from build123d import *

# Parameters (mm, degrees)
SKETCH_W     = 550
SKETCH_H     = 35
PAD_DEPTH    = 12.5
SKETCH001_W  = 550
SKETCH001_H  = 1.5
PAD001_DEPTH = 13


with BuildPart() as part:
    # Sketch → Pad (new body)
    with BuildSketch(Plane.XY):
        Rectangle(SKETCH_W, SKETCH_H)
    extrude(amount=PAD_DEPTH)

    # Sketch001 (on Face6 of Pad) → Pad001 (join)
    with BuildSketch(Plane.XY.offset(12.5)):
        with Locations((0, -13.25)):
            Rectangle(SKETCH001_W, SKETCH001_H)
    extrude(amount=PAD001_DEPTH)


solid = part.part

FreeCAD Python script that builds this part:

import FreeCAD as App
import Part
import Sketcher

V = App.Vector

doc = App.newDocument("Part")
params = doc.addObject("Spreadsheet::Sheet", "Params")
for row, (alias, value) in enumerate([
    ("sketch1_width", "550 mm"),
    ("sketch1_height", "35 mm"),
    ("pad1_length", "12.5 mm"),
    ("sketch2_width", "550 mm"),
    ("sketch2_height", "1.5 mm"),
    ("pad2_length", "13 mm"),
], start=1):
    params.set(f"A{row}", alias)
    params.set(f"B{row}", "=" + value)
    params.setAlias(f"B{row}", alias)

body = doc.addObject("PartDesign::Body", "Body")

# Sketch on XY plane
sketch1 = body.newObject("Sketcher::SketchObject", "Sketch")
sketch1.AttachmentSupport = (doc.getObject("XY_Plane"), [""])
sketch1.MapMode = "FlatFace"
sketch1.addGeometry(Part.LineSegment(V(-275, 17.5, 0), V(-275, -17.5, 0)), False)
sketch1.addGeometry(Part.LineSegment(V(-275, -17.5, 0), V(275, -17.5, 0)), False)
sketch1.addGeometry(Part.LineSegment(V(275, -17.5, 0), V(275, 17.5, 0)), False)
sketch1.addGeometry(Part.LineSegment(V(275, 17.5, 0), V(-275, 17.5, 0)), False)
sketch1.addConstraint(Sketcher.Constraint("Coincident", 0, 2, 1, 1))
sketch1.addConstraint(Sketcher.Constraint("Coincident", 1, 2, 2, 1))
sketch1.addConstraint(Sketcher.Constraint("Coincident", 2, 2, 3, 1))
sketch1.addConstraint(Sketcher.Constraint("Coincident", 3, 2, 0, 1))
sketch1.addConstraint(Sketcher.Constraint("Vertical", 0))
sketch1.addConstraint(Sketcher.Constraint("Horizontal", 1))
sketch1.addConstraint(Sketcher.Constraint("Vertical", 2))
sketch1.addConstraint(Sketcher.Constraint("Horizontal", 3))
sketch1.addConstraint(Sketcher.Constraint("Symmetric", 0, 2, 2, 2, -1, 1))
sketch1.addConstraint(Sketcher.Constraint("DistanceX", 1, 1, 1, 2, 550.0))
sketch1.addConstraint(Sketcher.Constraint("DistanceY", 0, 2, 0, 1, 35.0))
sketch1.setExpression("Constraints[9]", "Params.sketch1_width")
sketch1.setExpression("Constraints[10]", "Params.sketch1_height")
pad1 = body.newObject("PartDesign::Pad", "Pad")
pad1.Profile = sketch1
pad1.setExpression("Length", "Params.pad1_length")

# Sketch on XY plane
sketch2 = body.newObject("Sketcher::SketchObject", "Sketch001")
sketch2.AttachmentSupport = (doc.getObject("XY_Plane"), [""])
sketch2.MapMode = "FlatFace"
sketch2.AttachmentOffset = App.Placement(V(0, 0, 12.5), App.Rotation())
sketch2.addGeometry(Part.LineSegment(V(-275, -12.5, 0), V(-275, -14, 0)), False)
sketch2.addGeometry(Part.LineSegment(V(-275, -14, 0), V(275, -14, 0)), False)
sketch2.addGeometry(Part.LineSegment(V(275, -14, 0), V(275, -12.5, 0)), False)
sketch2.addGeometry(Part.LineSegment(V(275, -12.5, 0), V(-275, -12.5, 0)), False)
sketch2.addConstraint(Sketcher.Constraint("Coincident", 0, 2, 1, 1))
sketch2.addConstraint(Sketcher.Constraint("Coincident", 1, 2, 2, 1))
sketch2.addConstraint(Sketcher.Constraint("Coincident", 2, 2, 3, 1))
sketch2.addConstraint(Sketcher.Constraint("Coincident", 3, 2, 0, 1))
sketch2.addConstraint(Sketcher.Constraint("Vertical", 0))
sketch2.addConstraint(Sketcher.Constraint("Horizontal", 1))
sketch2.addConstraint(Sketcher.Constraint("Vertical", 2))
sketch2.addConstraint(Sketcher.Constraint("Horizontal", 3))
sketch2.addConstraint(Sketcher.Constraint("DistanceX", 1, 1, 1, 2, 550.0))
sketch2.addConstraint(Sketcher.Constraint("DistanceY", 0, 2, 0, 1, 1.5))
sketch2.addConstraint(Sketcher.Constraint("DistanceX", 0, 2, -1, 1, 275.0))
sketch2.addConstraint(Sketcher.Constraint("DistanceY", 0, 2, -1, 1, 14.0))
sketch2.setExpression("Constraints[8]", "Params.sketch2_width")
sketch2.setExpression("Constraints[9]", "Params.sketch2_height")
pad2 = body.newObject("PartDesign::Pad", "Pad001")
pad2.Profile = sketch2
pad2.setExpression("Length", "Params.pad2_length")

doc.recompute()
